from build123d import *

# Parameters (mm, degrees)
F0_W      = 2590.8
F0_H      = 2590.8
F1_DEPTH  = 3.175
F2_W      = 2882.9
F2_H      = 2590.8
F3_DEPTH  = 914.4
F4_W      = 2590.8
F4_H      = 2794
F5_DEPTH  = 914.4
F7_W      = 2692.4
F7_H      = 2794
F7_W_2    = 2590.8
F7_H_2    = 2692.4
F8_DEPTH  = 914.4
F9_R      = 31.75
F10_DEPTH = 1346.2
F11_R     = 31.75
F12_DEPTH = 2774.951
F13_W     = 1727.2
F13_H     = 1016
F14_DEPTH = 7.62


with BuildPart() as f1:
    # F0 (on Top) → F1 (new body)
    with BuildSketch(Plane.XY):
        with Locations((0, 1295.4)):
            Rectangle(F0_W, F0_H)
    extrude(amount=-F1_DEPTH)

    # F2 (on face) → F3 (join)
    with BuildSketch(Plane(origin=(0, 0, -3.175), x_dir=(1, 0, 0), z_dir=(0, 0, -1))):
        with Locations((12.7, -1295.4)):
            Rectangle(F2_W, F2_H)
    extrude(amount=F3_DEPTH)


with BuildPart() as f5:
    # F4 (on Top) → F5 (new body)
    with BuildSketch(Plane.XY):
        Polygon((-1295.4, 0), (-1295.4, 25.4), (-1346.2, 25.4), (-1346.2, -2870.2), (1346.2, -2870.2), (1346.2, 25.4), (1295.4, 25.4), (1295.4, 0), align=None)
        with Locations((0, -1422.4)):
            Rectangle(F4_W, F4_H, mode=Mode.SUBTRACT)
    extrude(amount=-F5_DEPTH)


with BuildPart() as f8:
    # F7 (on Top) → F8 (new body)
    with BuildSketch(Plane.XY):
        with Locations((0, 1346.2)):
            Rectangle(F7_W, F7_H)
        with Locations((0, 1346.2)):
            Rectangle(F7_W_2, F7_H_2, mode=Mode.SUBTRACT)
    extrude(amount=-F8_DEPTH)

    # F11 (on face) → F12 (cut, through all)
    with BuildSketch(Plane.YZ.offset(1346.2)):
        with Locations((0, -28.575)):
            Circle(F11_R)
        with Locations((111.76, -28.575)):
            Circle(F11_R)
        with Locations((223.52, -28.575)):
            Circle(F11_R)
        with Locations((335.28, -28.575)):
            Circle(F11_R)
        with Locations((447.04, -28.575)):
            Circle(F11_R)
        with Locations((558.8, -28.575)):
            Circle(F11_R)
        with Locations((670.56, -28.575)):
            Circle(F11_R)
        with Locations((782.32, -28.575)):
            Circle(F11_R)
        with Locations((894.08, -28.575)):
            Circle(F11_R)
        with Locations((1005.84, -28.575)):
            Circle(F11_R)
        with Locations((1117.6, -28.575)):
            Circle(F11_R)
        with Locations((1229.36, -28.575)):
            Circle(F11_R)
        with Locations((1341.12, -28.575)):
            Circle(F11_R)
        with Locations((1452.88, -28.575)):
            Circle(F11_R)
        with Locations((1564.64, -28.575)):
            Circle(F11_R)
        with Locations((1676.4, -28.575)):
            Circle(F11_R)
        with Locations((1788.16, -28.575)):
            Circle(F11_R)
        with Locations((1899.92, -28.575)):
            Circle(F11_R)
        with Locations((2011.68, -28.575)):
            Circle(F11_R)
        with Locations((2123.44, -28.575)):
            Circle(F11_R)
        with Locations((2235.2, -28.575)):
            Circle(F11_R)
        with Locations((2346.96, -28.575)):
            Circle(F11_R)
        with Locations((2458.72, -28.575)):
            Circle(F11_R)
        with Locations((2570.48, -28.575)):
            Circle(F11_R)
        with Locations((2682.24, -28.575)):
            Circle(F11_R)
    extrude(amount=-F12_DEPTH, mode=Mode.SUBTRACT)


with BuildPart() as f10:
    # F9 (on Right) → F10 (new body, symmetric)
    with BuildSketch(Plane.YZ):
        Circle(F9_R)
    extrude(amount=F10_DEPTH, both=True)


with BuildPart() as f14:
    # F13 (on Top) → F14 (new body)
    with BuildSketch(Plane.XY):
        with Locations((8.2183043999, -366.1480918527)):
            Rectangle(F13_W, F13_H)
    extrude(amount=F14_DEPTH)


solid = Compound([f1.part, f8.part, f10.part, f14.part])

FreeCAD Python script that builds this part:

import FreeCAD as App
import Part
import Sketcher
from FreeCAD import Vector
Q = App.Units.Quantity

doc = App.newDocument("Part")
params = doc.addObject("Spreadsheet::Sheet", "Params")
for row, (alias, value) in enumerate([
    ("sketch1_width", "102 in"),
    ("pad1_length", "0.125 in"),
    ("sketch2_height", "102 in"),
    ("sketch2_width", "113.5 in"),
    ("pad2_length", "36 in"),
    ("sketch3_width", "2 in"),
    ("sketch3_width2", "106 in"),
    ("sketch3_height", "1 in"),
    ("sketch3_height2", "114 in"),
    ("sketch3_height3", "110 in"),
    ("pad3_length", "36 in"),
    ("sketch4_width", "106 in"),
    ("sketch4_width2", "102 in"),
    ("sketch4_height", "110 in"),
    ("pad4_length", "36 in"),
    ("sketch5_diameter", "2.5 in"),
    ("sketch6_diameter", "2.5 in"),
    ("pad5_length", "106 in"),
    ("sketch7_width", "68 in"),
    ("sketch7_height", "40 in"),
    ("pad6_length", "0.3 in"),
], start=1):
    params.set(f"A{row}", alias)
    params.set(f"B{row}", "=" + value)
    params.setAlias(f"B{row}", alias)

body = doc.addObject("PartDesign::Body", "Body")

# Sketch on XY plane
sketch1 = body.newObject("Sketcher::SketchObject", "Sketch")
sketch1.AttachmentSupport = (doc.getObject("XY_Plane"), [""])
sketch1.MapMode = "FlatFace"
sketch1.addGeometry([
    Part.LineSegment(Vector(-1295, 2591, 0), Vector(-1295, 0, 0)),
    Part.LineSegment(Vector(-1295, 0, 0), Vector(1295, 0, 0)),
    Part.LineSegment(Vector(1295, 0, 0), Vector(1295, 2591, 0)),
    Part.LineSegment(Vector(1295, 2591, 0), Vector(-1295, 2591, 0)),
], False)
sketch1.addConstraint([
    Sketcher.Constraint("Coincident", 0, 2, 1, 1),
    Sketcher.Constraint("Coincident", 1, 2, 2, 1),
    Sketcher.Constraint("Coincident", 2, 2, 3, 1),
    Sketcher.Constraint("Coincident", 3, 2, 0, 1),
    Sketcher.Constraint("Vertical", 0),
    Sketcher.Constraint("Horizontal", 1),
    Sketcher.Constraint("Vertical", 2),
    Sketcher.Constraint("Horizontal", 3),
    Sketcher.Constraint("Symmetric", 0, 2, 1, 2, -1, 1),
    Sketcher.Constraint("Equal", 3, 0),
    Sketcher.Constraint("DistanceX", 1, 1, 1, 2, Q("102 in")),
])
sketch1.setExpression("Constraints[10]", "Params.sketch1_width")
pad1 = body.newObject("PartDesign::Pad", "Pad")
pad1.Profile = sketch1
pad1.setExpression("Length", "Params.pad1_length")
pad1.Reversed = True

# Sketch on XY plane
sketch2 = body.newObject("Sketcher::SketchObject", "Sketch001")
sketch2.AttachmentSupport = (doc.getObject("XY_Plane"), [""])
sketch2.MapMode = "FlatFace"
sketch2.AttachmentOffset = App.Placement(Vector(0, 0, -0.125 * 25.4), App.Rotation())
sketch2.addGeometry([
    Part.LineSegment(Vector(-1429, 0, 0), Vector(-1429, 2591, 0)),
    Part.LineSegment(Vector(-1429, 2591, 0), Vector(1454, 2591, 0)),
    Part.LineSegment(Vector(1454, 2591, 0), Vector(1454, 0, 0)),
    Part.LineSegment(Vector(1454, 0, 0), Vector(-1429, 0, 0)),
], False)
sketch2.addConstraint([
    Sketcher.Constraint("Coincident", 0, 2, 1, 1),
    Sketcher.Constraint("Coincident", 1, 2, 2, 1),
    Sketcher.Constraint("Coincident", 2, 2, 3, 1),
    Sketcher.Constraint("Coincident", 3, 2, 0, 1),
    Sketcher.Constraint("Vertical", 0),
    Sketcher.Constraint("Horizontal", 1),
    Sketcher.Constraint("Vertical", 2),
    Sketcher.Constraint("Horizontal", 3),
    Sketcher.Constraint("PointOnObject", 2, 2, -1),
    Sketcher.Constraint("DistanceY", 0, 1, 0, 2, Q("102 in")),
    Sketcher.Constraint("DistanceX", 1, 1, 1, 2, Q("113.5 in")),
    Sketcher.Constraint("DistanceX", 0, 2, -1, 1, Q("56.25 in")),
])
sketch2.setExpression("Constraints[9]", "Params.sketch2_height")
sketch2.setExpression("Constraints[10]", "Params.sketch2_width")
pad2 = body.newObject("PartDesign::Pad", "Pad001")
pad2.Profile = sketch2
pad2.setExpression("Length", "Params.pad2_length")
pad2.Reversed = True
body2 = doc.addObject("PartDesign::Body", "Body001")

# Sketch on XY plane
sketch3 = body2.newObject("Sketcher::SketchObject", "Sketch002")
sketch3.AttachmentSupport = (doc.getObject("XY_Plane001"), [""])
sketch3.MapMode = "FlatFace"
sketch3.addGeometry([
    Part.LineSegment(Vector(-1295, 0, 0), Vector(-1295, 25, 0)),  # 0
    Part.LineSegment(Vector(-1295, 25, 0), Vector(-1346, 25, 0)),  # 1
    Part.LineSegment(Vector(-1346, 25, 0), Vector(-1346, -2870, 0)),  # 2
    Part.LineSegment(Vector(-1346, -2870, 0), Vector(1346, -2870, 0)),  # 3
    Part.LineSegment(Vector(1346, -2870, 0), Vector(1346, 25, 0)),  # 4
    Part.LineSegment(Vector(1346, 25, 0), Vector(1295, 25, 0)),  # 5
    Part.LineSegment(Vector(1295, 25, 0), Vector(1295, 0, 0)),  # 6
    Part.LineSegment(Vector(1295, 0, 0), Vector(-1295, 0, 0)),  # 7
    Part.LineSegment(Vector(1295, -2819, 0), Vector(-1295, -2819, 0)),  # 8
    Part.LineSegment(Vector(-1295, -2819, 0), Vector(-1295, -25, 0)),  # 9
    Part.LineSegment(Vector(-1295, -25, 0), Vector(1295, -25, 0)),  # 10
    Part.LineSegment(Vector(1295, -25, 0), Vector(1295, -2819, 0)),  # 11
], False)
sketch3.addConstraint([
    Sketcher.Constraint("Coincident", 0, 2, 1, 1),
    Sketcher.Constraint("Coincident", 1, 2, 2, 1),
    Sketcher.Constraint("Coincident", 2, 2, 3, 1),
    Sketcher.Constraint("Coincident", 3, 2, 4, 1),
    Sketcher.Constraint("Coincident", 4, 2, 5, 1),
    Sketcher.Constraint("Coincident", 5, 2, 6, 1),
    Sketcher.Constraint("Coincident", 6, 2, 7, 1),
    Sketcher.Constraint("Coincident", 7, 2, 0, 1),
    Sketcher.Constraint("Coincident", 8, 2, 9, 1),
    Sketcher.Constraint("Coincident", 9, 2, 10, 1),
    Sketcher.Constraint("Coincident", 10, 2, 11, 1),
    Sketcher.Constraint("Coincident", 11, 2, 8, 1),
    Sketcher.Constraint("Vertical", 0),
    Sketcher.Constraint("Horizontal", 1),
    Sketcher.Constraint("Vertical", 2),
    Sketcher.Constraint("Horizontal", 3),
    Sketcher.Constraint("Vertical", 4),
    Sketcher.Constraint("Horizontal", 5),
    Sketcher.Constraint("Vertical", 6),
    Sketcher.Constraint("Horizontal", 7),
    Sketcher.Constraint("Horizontal", 8),
    Sketcher.Constraint("Vertical", 9),
    Sketcher.Constraint("Horizontal", 10),
    Sketcher.Constraint("Vertical", 11),
    Sketcher.Constraint("Symmetric", 6, 2, 7, 2, -1, 1),
    Sketcher.Constraint("Symmetric", 5, 2, 9, 2, -1, 1),
    Sketcher.Constraint("Symmetric", 0, 2, 10, 2, -1, 1),
    Sketcher.Constraint("Equal", 1, 5),
    Sketcher.Constraint("DistanceX", 1, 2, 1, 1, Q("2 in")),
    Sketcher.Constraint("DistanceX", 3, 1, 3, 2, Q("106 in")),
    Sketcher.Constraint("DistanceY", 0, 1, 0, 2, Q("1 in")),
    Sketcher.Constraint("DistanceY", 2, 2, 2, 1, Q("114 in")),
    Sketcher.Constraint("DistanceY", 9, 1, 9, 2, Q("110 in")),
])
sketch3.setExpression("Constraints[28]", "Params.sketch3_width")
sketch3.setExpression("Constraints[29]", "Params.sketch3_width2")
sketch3.setExpression("Constraints[30]", "Params.sketch3_height")
sketch3.setExpression("Constraints[31]", "Params.sketch3_height2")
sketch3.setExpression("Constraints[32]", "Params.sketch3_height3")
pad3 = body2.newObject("PartDesign::Pad", "Pad002")
pad3.Profile = sketch3
pad3.setExpression("Length", "Params.pad3_length")
pad3.Reversed = True
body3 = doc.addObject("PartDesign::Body", "Body002")

# Sketch on XY plane
sketch4 = body3.newObject("Sketcher::SketchObject", "Sketch003")
sketch4.AttachmentSupport = (doc.getObject("XY_Plane002"), [""])
sketch4.MapMode = "FlatFace"
sketch4.addGeometry([
    Part.LineSegment(Vector(-1346, 2743, 0), Vector(-1346, -51, 0)),  # 0
    Part.LineSegment(Vector(-1346, -51, 0), Vector(1346, -51, 0)),  # 1
    Part.LineSegment(Vector(1346, -51, 0), Vector(1346, 2743, 0)),  # 2
    Part.LineSegment(Vector(1346, 2743, 0), Vector(-1346, 2743, 0)),  # 3
    Part.LineSegment(Vector(1295, 0, 0), Vector(-1295, 0, 0)),  # 4
    Part.LineSegment(Vector(-1295, 0, 0), Vector(-1295, 2692, 0)),  # 5
    Part.LineSegment(Vector(-1295, 2692, 0), Vector(1295, 2692, 0)),  # 6
    Part.LineSegment(Vector(1295, 2692, 0), Vector(1295, 0, 0)),  # 7
], False)
sketch4.addConstraint([
    Sketcher.Constraint("Coincident", 0, 2, 1, 1),
    Sketcher.Constraint("Coincident", 1, 2, 2, 1),
    Sketcher.Constraint("Coincident", 2, 2, 3, 1),
    Sketcher.Constraint("Coincident", 3, 2, 0, 1),
    Sketcher.Constraint("Coincident", 4, 2, 5, 1),
    Sketcher.Constraint("Coincident", 5, 2, 6, 1),
    Sketcher.Constraint("Coincident", 6, 2, 7, 1),
    Sketcher.Constraint("Coincident", 7, 2, 4, 1),
    Sketcher.Constraint("Vertical", 0),
    Sketcher.Constraint("Horizontal", 1),
    Sketcher.Constraint("Vertical", 2),
    Sketcher.Constraint("Horizontal", 3),
    Sketcher.Constraint("Horizontal", 4),
    Sketcher.Constraint("Vertical", 5),
    Sketcher.Constraint("Horizontal", 6),
    Sketcher.Constraint("Vertical", 7),
    Sketcher.Constraint("Symmetric", 4, 2, 7, 2, -1, 1),
    Sketcher.Constraint("Equal", 3, 5),
    Sketcher.Constraint("DistanceX", 1, 1, 1, 2, Q("106 in")),
    Sketcher.Constraint("DistanceX", 4, 2, 4, 1, Q("102 in")),
    Sketcher.Constraint("DistanceY", 0, 2, 0, 1, Q("110 in")),
    Sketcher.Constraint("DistanceX", 0, 2, -1, 1, Q("53 in")),
    Sketcher.Constraint("DistanceY", 0, 2, -1, 1, Q("2 in")),
])
sketch4.setExpression("Constraints[18]", "Params.sketch4_width")
sketch4.setExpression("Constraints[19]", "Params.sketch4_width2")
sketch4.setExpression("Constraints[20]", "Params.sketch4_height")
pad4 = body3.newObject("PartDesign::Pad", "Pad003")
pad4.Profile = sketch4
pad4.setExpression("Length", "Params.pad4_length")
pad4.Reversed = True

# Sketch on YZ plane
sketch5 = body3.newObject("Sketcher::SketchObject", "Sketch004")
sketch5.AttachmentSupport = (doc.getObject("YZ_Plane002"), [""])
sketch5.MapMode = "FlatFace"
sketch5.AttachmentOffset = App.Placement(Vector(0, 0, 53 * 25.4), App.Rotation())
sketch5.addGeometry([
    Part.Circle(Vector(0, -29, 0), Vector(0, 0, 1), 32),  # 0
    Part.Circle(Vector(112, -29, 0), Vector(0, 0, 1), 32),  # 1
    Part.Circle(Vector(224, -29, 0), Vector(0, 0, 1), 32),  # 2
    Part.Circle(Vector(335, -29, 0), Vector(0, 0, 1), 32),  # 3
    Part.Circle(Vector(447, -29, 0), Vector(0, 0, 1), 32),  # 4
    Part.Circle(Vector(559, -29, 0), Vector(0, 0, 1), 32),  # 5
    Part.Circle(Vector(671, -29, 0), Vector(0, 0, 1), 32),  # 6
    Part.Circle(Vector(782, -29, 0), Vector(0, 0, 1), 32),  # 7
    Part.Circle(Vector(894, -29, 0), Vector(0, 0, 1), 32),  # 8
    Part.Circle(Vector(1006, -29, 0), Vector(0, 0, 1), 32),  # 9
    Part.Circle(Vector(1118, -29, 0), Vector(0, 0, 1), 32),  # 10
    Part.Circle(Vector(1229, -29, 0), Vector(0, 0, 1), 32),  # 11
    Part.Circle(Vector(1341, -29, 0), Vector(0, 0, 1), 32),  # 12
    Part.Circle(Vector(1453, -29, 0), Vector(0, 0, 1), 32),  # 13
    Part.Circle(Vector(1565, -29, 0), Vector(0, 0, 1), 32),  # 14
    Part.Circle(Vector(1676, -29, 0), Vector(0, 0, 1), 32),  # 15
    Part.Circle(Vector(1788, -29, 0), Vector(0, 0, 1), 32),  # 16
    Part.Circle(Vector(1900, -29, 0), Vector(0, 0, 1), 32),  # 17
    Part.Circle(Vector(2012, -29, 0), Vector(0, 0, 1), 32),  # 18
    Part.Circle(Vector(2123, -29, 0), Vector(0, 0, 1), 32),  # 19
    Part.Circle(Vector(2235, -29, 0), Vector(0, 0, 1), 32),  # 20
    Part.Circle(Vector(2347, -29, 0), Vector(0, 0, 1), 32),  # 21
    Part.Circle(Vector(2459, -29, 0), Vector(0, 0, 1), 32),  # 22
    Part.Circle(Vector(2570, -29, 0), Vector(0, 0, 1), 32),  # 23
    Part.Circle(Vector(2682, -29, 0), Vector(0, 0, 1), 32),  # 24
], False)
sketch5.addConstraint([
    Sketcher.Constraint("Equal", 0, 1),
    Sketcher.Constraint("Equal", 1, 2),
    Sketcher.Constraint("Equal", 2, 3),
    Sketcher.Constraint("Equal", 3, 4),
    Sketcher.Constraint("Equal", 4, 5),
    Sketcher.Constraint("Equal", 5, 6),
    Sketcher.Constraint("Equal", 6, 7),
    Sketcher.Constraint("Equal", 7, 8),
    Sketcher.Constraint("Equal", 8, 9),
    Sketcher.Constraint("Equal", 9, 10),
    Sketcher.Constraint("Equal", 10, 11),
    Sketcher.Constraint("Equal", 11, 12),
    Sketcher.Constraint("Equal", 12, 13),
    Sketcher.Constraint("Equal", 13, 14),
    Sketcher.Constraint("Equal", 14, 15),
    Sketcher.Constraint("Equal", 15, 16),
    Sketcher.Constraint("Equal", 16, 17),
    Sketcher.Constraint("Equal", 17, 18),
    Sketcher.Constraint("Equal", 18, 19),
    Sketcher.Constraint("Equal", 19, 20),
    Sketcher.Constraint("Equal", 20, 21),
    Sketcher.Constraint("Equal", 21, 22),
    Sketcher.Constraint("Equal", 22, 23),
    Sketcher.Constraint("Equal", 23, 24),
    Sketcher.Constraint("PointOnObject", 0, 3, -2),
    Sketcher.Constraint("Horizontal", 0, 3, 1, 3),
    Sketcher.Constraint("Horizontal", 1, 3, 2, 3),
    Sketcher.Constraint("Horizontal", 2, 3, 3, 3),
    Sketcher.Constraint("Horizontal", 3, 3, 4, 3),
    Sketcher.Constraint("Horizontal", 4, 3, 5, 3),
    Sketcher.Constraint("Horizontal", 5, 3, 6, 3),
    Sketcher.Constraint("Horizontal", 6, 3, 7, 3),
    Sketcher.Constraint("Horizontal", 7, 3, 8, 3),
    Sketcher.Constraint("Horizontal", 8, 3, 9, 3),
    Sketcher.Constraint("Horizontal", 9, 3, 10, 3),
    Sketcher.Constraint("Horizontal", 10, 3, 11, 3),
    Sketcher.Constraint("Horizontal", 11, 3, 12, 3),
    Sketcher.Constraint("Horizontal", 12, 3, 13, 3),
    Sketcher.Constraint("Horizontal", 13, 3, 14, 3),
    Sketcher.Constraint("Horizontal", 14, 3, 15, 3),
    Sketcher.Constraint("Horizontal", 15, 3, 16, 3),
    Sketcher.Constraint("Horizontal", 16, 3, 17, 3),
    Sketcher.Constraint("Horizontal", 17, 3, 18, 3),
    Sketcher.Constraint("Horizontal", 18, 3, 19, 3),
    Sketcher.Constraint("Horizontal", 19, 3, 20, 3),
    Sketcher.Constraint("Horizontal", 20, 3, 21, 3),
    Sketcher.Constraint("Horizontal", 21, 3, 22, 3),
    Sketcher.Constraint("Horizontal", 22, 3, 23, 3),
    Sketcher.Constraint("Horizontal", 23, 3, 24, 3),
    Sketcher.Constraint("Diameter", 0, Q("2.5 in")),
    Sketcher.Constraint("DistanceX", -1, 1, 5, 3, Q("22 in")),
    Sketcher.Constraint("DistanceX", -1, 1, 10, 3, Q("44 in")),
    Sketcher.Constraint("DistanceX", -1, 1, 15, 3, Q("66 in")),
    Sketcher.Constraint("DistanceX", -1, 1, 20, 3, Q("88 in")),
    Sketcher.Constraint("DistanceX", 1, 3, 6, 3, Q("22 in")),
    Sketcher.Constraint("DistanceX", 2, 3, 7, 3, Q("22 in")),
    Sketcher.Constraint("DistanceX", 3, 3, 8, 3, Q("22 in")),
    Sketcher.Constraint("DistanceX", 4, 3, 9, 3, Q("22 in")),
    Sketcher.Constraint("DistanceX", 6, 3, 11, 3, Q("22 in")),
    Sketcher.Constraint("DistanceX", 7, 3, 12, 3, Q("22 in")),
    Sketcher.Constraint("DistanceX", 8, 3, 13, 3, Q("22 in")),
    Sketcher.Constraint("DistanceX", 9, 3, 14, 3, Q("22 in")),
    Sketcher.Constraint("DistanceX", 11, 3, 16, 3, Q("22 in")),
    Sketcher.Constraint("DistanceX", 12, 3, 17, 3, Q("22 in")),
    Sketcher.Constraint("DistanceX", 13, 3, 18, 3, Q("22 in")),
    Sketcher.Constraint("DistanceX", 14, 3, 19, 3, Q("22 in")),
    Sketcher.Constraint("DistanceX", 16, 3, 21, 3, Q("22 in")),
    Sketcher.Constraint("DistanceX", 17, 3, 22, 3, Q("22 in")),
    Sketcher.Constraint("DistanceX", 18, 3, 23, 3, Q("22 in")),
    Sketcher.Constraint("DistanceX", 19, 3, 24, 3, Q("22 in")),
    Sketcher.Constraint("DistanceX", -1, 1, 1, 3, Q("4.4 in")),
    Sketcher.Constraint("DistanceX", -1, 1, 2, 3, Q("8.8 in")),
    Sketcher.Constraint("DistanceX", -1, 1, 3, 3, Q("13.2 in")),
    Sketcher.Constraint("DistanceX", -1, 1, 4, 3, Q("17.6 in")),
    Sketcher.Constraint("DistanceY", 0, 3, -1, 1, Q("1.125 in")),
])
sketch5.setExpression("Constraints[49]", "Params.sketch5_diameter")
pocket1 = body3.newObject("PartDesign::Pocket", "Pocket")
pocket1.Profile = sketch5
pocket1.Type = "ThroughAll"
body4 = doc.addObject("PartDesign::Body", "Body003")

# Sketch on YZ plane
sketch6 = body4.newObject("Sketcher::SketchObject", "Sketch005")
sketch6.AttachmentSupport = (doc.getObject("YZ_Plane003"), [""])
sketch6.MapMode = "FlatFace"
sketch6.addGeometry(Part.Circle(Vector(0, 0, 0), Vector(0, 0, 1), 32), False)
sketch6.addConstraint([
    Sketcher.Constraint("Coincident", 0, 3, -1, 1),
    Sketcher.Constraint("Diameter", 0, Q("2.5 in")),
])
sketch6.setExpression("Constraints[1]", "Params.sketch6_diameter")
pad5 = body4.newObject("PartDesign::Pad", "Pad004")
pad5.Profile = sketch6
pad5.setExpression("Length", "Params.pad5_length")
pad5.Midplane = True
body5 = doc.addObject("PartDesign::Body", "Body004")

# Sketch on XY plane
sketch7 = body5.newObject("Sketcher::SketchObject", "Sketch006")
sketch7.AttachmentSupport = (doc.getObject("XY_Plane004"), [""])
sketch7.MapMode = "FlatFace"
sketch7.addGeometry([
    Part.LineSegment(Vector(-855, 142, 0), Vector(-855, -874, 0)),
    Part.LineSegment(Vector(-855, -874, 0), Vector(872, -874, 0)),
    Part.LineSegment(Vector(872, -874, 0), Vector(872, 142, 0)),
    Part.LineSegment(Vector(872, 142, 0), Vector(-855, 142, 0)),
], False)
sketch7.addConstraint([
    Sketcher.Constraint("Coincident", 0, 2, 1, 1),
    Sketcher.Constraint("Coincident", 1, 2, 2, 1),
    Sketcher.Constraint("Coincident", 2, 2, 3, 1),
    Sketcher.Constraint("Coincident", 3, 2, 0, 1),
    Sketcher.Constraint("Vertical", 0),
    Sketcher.Constraint("Horizontal", 1),
    Sketcher.Constraint("Vertical", 2),
    Sketcher.Constraint("Horizontal", 3),
    Sketcher.Constraint("DistanceX", 1, 1, 1, 2, Q("68 in")),
    Sketcher.Constraint("DistanceY", 0, 2, 0, 1, Q("40 in")),
    Sketcher.Constraint("DistanceY", 0, 2, -1, 1, Q("874.148092 mm")),
    Sketcher.Constraint("DistanceX", 0, 2, -1, 1, Q("855.381696 mm")),
])
sketch7.setExpression("Constraints[8]", "Params.sketch7_width")
sketch7.setExpression("Constraints[9]", "Params.sketch7_height")
pad6 = body5.newObject("PartDesign::Pad", "Pad005")
pad6.Profile = sketch7
pad6.setExpression("Length", "Params.pad6_length")
body2.Visibility = False

doc.recompute()
